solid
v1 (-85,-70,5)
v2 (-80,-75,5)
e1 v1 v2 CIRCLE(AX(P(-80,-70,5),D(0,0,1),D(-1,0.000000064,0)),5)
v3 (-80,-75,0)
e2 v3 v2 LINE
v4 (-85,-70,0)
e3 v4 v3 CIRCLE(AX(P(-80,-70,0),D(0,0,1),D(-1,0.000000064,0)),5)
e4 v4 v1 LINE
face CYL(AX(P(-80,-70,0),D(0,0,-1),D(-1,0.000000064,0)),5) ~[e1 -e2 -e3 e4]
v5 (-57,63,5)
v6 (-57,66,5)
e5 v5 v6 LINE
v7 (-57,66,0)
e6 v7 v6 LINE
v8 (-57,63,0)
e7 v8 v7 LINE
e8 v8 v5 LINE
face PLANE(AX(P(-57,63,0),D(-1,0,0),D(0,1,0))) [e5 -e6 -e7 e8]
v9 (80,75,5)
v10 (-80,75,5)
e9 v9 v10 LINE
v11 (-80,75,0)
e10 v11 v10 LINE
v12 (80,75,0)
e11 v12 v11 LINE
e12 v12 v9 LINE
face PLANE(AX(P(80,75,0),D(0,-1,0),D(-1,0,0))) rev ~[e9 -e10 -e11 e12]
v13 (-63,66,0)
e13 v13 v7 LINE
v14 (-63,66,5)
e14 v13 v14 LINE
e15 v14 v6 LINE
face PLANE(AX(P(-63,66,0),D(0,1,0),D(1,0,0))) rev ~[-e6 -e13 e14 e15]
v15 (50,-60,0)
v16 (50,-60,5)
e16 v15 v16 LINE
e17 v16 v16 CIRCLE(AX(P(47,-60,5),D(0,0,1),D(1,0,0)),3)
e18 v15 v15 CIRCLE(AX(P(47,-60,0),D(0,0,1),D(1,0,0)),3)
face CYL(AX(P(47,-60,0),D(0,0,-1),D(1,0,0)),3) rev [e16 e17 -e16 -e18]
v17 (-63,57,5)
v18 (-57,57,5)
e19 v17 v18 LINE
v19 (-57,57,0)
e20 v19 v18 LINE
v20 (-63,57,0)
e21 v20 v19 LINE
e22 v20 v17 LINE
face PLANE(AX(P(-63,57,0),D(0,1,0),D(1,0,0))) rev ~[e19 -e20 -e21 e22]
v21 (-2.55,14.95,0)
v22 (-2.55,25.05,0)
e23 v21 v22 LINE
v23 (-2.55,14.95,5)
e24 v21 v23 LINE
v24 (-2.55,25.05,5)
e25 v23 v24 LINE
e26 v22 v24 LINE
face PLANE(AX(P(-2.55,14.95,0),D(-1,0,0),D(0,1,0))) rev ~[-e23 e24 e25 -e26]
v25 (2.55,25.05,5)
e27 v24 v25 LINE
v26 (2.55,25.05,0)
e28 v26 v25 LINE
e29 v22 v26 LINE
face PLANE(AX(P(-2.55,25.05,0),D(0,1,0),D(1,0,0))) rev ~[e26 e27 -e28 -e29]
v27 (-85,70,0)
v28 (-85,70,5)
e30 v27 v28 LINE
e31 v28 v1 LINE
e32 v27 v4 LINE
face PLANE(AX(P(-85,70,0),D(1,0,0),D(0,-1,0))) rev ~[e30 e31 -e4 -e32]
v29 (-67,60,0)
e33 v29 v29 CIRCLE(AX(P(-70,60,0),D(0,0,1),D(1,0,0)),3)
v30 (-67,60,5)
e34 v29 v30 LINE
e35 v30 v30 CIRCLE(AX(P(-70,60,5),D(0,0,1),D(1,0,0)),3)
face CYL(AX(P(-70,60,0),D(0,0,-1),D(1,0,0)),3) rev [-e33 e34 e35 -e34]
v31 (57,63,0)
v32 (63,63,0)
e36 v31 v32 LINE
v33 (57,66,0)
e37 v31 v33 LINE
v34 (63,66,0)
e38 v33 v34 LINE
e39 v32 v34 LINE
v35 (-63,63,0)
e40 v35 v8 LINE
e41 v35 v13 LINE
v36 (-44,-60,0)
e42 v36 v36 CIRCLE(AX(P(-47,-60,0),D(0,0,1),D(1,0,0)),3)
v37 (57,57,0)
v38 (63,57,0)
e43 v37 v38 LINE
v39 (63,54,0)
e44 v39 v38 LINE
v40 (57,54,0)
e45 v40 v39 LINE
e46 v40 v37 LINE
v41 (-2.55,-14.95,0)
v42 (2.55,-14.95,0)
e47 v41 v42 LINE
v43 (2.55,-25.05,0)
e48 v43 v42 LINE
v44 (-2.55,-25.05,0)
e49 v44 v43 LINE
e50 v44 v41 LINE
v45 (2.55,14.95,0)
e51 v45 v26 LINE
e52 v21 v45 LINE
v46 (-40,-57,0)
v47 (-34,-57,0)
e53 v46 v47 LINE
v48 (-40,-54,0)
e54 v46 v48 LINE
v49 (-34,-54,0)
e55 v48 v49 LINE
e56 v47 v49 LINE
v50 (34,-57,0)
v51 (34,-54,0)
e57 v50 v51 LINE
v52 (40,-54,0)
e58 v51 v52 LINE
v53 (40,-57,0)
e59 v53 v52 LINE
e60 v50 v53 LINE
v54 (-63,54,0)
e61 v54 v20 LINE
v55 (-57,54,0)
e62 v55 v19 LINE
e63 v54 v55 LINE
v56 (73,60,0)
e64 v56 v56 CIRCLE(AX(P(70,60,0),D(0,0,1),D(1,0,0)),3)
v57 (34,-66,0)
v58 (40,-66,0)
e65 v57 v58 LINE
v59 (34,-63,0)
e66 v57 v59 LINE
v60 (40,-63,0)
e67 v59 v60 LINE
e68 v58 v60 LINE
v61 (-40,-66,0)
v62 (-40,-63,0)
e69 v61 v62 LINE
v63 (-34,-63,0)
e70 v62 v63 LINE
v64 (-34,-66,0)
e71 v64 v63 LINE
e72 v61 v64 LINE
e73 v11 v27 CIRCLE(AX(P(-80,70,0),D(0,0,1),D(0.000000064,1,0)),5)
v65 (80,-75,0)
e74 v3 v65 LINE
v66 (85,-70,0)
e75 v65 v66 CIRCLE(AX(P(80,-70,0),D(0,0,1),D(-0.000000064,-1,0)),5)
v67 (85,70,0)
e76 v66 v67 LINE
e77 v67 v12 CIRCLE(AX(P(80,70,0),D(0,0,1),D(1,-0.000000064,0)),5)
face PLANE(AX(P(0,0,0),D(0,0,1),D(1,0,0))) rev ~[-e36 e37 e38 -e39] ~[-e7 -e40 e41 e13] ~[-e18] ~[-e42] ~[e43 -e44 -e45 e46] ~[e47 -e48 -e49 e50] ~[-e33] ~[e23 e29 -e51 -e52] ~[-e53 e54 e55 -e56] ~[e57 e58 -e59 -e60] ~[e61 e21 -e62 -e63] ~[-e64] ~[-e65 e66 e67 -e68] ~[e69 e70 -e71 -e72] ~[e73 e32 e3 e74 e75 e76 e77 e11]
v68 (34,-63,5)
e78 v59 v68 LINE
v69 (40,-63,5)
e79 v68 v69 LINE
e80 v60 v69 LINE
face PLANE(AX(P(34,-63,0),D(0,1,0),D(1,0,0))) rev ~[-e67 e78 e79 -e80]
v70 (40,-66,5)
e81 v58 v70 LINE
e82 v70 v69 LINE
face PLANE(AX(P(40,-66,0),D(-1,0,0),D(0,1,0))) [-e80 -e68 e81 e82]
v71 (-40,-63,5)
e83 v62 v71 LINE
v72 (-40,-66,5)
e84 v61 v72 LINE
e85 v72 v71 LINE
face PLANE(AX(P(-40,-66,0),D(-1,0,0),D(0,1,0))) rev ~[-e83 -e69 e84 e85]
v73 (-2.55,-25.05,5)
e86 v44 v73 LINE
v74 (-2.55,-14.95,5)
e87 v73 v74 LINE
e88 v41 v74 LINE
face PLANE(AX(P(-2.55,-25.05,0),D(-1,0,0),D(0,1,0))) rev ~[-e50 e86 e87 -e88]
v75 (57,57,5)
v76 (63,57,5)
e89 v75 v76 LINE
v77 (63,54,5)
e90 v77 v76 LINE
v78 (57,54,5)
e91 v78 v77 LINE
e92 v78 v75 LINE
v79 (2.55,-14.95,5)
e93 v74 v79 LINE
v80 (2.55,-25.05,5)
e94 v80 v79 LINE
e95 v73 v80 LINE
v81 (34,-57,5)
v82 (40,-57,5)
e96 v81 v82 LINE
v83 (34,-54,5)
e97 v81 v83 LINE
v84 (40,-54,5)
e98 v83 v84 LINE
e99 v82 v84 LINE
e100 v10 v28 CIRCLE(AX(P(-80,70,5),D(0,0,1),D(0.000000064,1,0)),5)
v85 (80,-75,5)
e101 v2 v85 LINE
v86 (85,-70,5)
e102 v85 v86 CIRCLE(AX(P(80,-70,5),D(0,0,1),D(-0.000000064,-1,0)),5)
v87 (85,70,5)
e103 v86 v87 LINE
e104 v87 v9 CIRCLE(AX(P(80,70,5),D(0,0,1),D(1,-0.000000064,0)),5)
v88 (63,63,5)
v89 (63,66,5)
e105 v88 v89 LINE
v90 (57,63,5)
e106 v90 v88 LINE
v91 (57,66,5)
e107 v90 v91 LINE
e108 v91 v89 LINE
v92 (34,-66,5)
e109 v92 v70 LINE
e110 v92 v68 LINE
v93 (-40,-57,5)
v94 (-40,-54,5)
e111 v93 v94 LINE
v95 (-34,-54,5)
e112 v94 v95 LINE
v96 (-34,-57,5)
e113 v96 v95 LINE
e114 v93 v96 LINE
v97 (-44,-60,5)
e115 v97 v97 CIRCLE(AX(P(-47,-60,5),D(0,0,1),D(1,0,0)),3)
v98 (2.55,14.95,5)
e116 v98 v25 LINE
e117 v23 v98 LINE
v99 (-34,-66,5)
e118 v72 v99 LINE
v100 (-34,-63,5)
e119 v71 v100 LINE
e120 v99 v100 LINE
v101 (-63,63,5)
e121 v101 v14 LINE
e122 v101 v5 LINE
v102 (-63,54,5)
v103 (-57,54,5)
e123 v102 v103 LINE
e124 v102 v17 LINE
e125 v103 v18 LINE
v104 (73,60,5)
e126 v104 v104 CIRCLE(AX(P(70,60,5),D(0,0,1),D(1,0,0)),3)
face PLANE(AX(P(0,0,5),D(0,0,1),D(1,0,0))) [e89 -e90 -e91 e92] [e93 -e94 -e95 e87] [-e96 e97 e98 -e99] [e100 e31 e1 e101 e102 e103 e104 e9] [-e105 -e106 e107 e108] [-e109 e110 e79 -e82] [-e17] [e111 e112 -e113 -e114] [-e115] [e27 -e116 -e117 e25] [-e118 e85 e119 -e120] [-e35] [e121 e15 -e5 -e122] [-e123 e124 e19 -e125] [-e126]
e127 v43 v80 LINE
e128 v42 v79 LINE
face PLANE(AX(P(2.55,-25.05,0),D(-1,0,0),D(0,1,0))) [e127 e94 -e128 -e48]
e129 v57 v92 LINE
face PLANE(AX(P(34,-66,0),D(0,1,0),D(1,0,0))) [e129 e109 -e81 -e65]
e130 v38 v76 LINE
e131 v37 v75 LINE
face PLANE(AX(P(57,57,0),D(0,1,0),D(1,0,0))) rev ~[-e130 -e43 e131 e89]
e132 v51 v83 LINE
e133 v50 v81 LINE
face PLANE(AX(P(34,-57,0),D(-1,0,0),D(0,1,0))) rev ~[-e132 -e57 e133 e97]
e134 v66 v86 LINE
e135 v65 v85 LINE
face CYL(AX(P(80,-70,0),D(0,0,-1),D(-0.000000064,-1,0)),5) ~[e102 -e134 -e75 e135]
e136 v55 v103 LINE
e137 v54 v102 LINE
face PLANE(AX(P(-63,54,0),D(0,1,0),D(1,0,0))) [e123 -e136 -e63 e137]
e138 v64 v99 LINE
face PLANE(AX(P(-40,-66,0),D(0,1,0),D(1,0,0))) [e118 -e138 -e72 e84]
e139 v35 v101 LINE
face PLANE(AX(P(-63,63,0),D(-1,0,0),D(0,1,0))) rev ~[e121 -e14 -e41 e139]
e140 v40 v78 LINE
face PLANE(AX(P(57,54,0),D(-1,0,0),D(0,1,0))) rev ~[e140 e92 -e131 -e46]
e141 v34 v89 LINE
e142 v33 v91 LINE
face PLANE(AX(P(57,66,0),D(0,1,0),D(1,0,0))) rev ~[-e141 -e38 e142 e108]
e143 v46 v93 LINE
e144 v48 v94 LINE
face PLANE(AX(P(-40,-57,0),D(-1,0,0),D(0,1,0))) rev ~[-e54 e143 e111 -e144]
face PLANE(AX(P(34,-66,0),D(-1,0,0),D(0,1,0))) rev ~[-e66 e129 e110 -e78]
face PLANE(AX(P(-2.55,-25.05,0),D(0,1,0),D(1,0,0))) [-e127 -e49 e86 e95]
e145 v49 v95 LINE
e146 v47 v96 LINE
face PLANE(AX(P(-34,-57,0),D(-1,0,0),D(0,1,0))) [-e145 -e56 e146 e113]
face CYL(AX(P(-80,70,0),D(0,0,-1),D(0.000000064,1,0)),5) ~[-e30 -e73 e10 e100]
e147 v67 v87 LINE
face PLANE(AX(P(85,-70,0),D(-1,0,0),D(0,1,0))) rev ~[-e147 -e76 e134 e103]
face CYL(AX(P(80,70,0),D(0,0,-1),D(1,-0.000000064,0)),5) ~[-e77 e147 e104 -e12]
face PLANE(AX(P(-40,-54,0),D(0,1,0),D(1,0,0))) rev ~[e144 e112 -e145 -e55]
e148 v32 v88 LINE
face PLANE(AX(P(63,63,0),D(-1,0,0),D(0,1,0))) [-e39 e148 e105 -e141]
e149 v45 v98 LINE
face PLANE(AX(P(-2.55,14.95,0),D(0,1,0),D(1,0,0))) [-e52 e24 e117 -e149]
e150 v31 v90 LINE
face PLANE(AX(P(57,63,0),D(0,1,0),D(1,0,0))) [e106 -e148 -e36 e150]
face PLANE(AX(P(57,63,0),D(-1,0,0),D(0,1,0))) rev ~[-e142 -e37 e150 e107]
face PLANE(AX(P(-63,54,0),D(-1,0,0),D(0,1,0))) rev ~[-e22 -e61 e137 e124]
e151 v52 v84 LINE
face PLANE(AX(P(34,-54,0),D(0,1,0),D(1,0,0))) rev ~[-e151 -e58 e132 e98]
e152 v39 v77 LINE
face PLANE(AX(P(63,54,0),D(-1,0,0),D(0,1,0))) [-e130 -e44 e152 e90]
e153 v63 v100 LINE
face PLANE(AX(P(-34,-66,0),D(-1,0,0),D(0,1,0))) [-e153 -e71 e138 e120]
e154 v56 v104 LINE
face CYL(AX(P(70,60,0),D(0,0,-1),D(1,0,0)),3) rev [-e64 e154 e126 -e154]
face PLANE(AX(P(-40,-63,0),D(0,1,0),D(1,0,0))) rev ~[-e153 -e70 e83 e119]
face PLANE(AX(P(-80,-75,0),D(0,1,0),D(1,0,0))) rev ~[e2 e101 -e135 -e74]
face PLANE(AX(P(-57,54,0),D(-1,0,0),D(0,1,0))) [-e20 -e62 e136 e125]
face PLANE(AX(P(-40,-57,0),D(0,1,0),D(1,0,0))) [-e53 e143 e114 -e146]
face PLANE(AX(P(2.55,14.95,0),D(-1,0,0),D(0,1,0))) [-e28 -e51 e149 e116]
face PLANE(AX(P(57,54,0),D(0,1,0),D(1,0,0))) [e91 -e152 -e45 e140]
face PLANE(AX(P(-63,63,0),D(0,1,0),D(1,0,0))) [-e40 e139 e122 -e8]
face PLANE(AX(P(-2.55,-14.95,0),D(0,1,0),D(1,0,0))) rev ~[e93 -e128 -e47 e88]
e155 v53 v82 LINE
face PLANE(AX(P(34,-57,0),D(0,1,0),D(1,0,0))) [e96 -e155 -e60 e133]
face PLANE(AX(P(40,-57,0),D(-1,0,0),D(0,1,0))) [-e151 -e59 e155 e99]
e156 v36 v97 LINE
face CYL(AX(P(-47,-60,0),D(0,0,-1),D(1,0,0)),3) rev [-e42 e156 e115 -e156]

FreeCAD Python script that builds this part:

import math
import FreeCAD as App
import Part
import Sketcher

V = App.Vector


def add_polygon(sketch, points):
    """Adds a closed chain of lines whose ends are joined by coincident constraints."""
    first, n = sketch.GeometryCount, len(points)
    for a, b in zip(points, points[1:] + points[:1]):
        sketch.addGeometry(Part.LineSegment(App.Vector(*a, 0), App.Vector(*b, 0)), False)
    for i in range(n):
        sketch.addConstraint(Sketcher.Constraint("Coincident", first + i, 2, first + (i + 1) % n, 1))

doc = App.newDocument("Part")
body = doc.addObject("PartDesign::Body", "Body")

# Sketch on XY plane
sketch1 = doc.addObject("Sketcher::SketchObject", "Sketch")
body.addObject(sketch1)
sketch1.AttachmentSupport = (doc.XY_Plane, [""])
sketch1.MapMode = "FlatFace"
sketch1.addGeometry(Part.ArcOfCircle(Part.Circle(V(80, 70, 0), V(0, 0, 1), 5), math.radians(0), math.radians(90)), False)  # 0
sketch1.addGeometry(Part.LineSegment(V(80, 75, 0), V(-80, 75, 0)), False)  # 1
sketch1.addGeometry(Part.ArcOfCircle(Part.Circle(V(-80, 70, 0), V(0, 0, 1), 5), math.radians(90), math.radians(180)), False)  # 2
sketch1.addGeometry(Part.LineSegment(V(-85, 70, 0), V(-85, -70, 0)), False)  # 3
sketch1.addGeometry(Part.ArcOfCircle(Part.Circle(V(-80, -70, 0), V(0, 0, 1), 5), math.radians(180), math.radians(270)), False)  # 4
sketch1.addGeometry(Part.LineSegment(V(-80, -75, 0), V(80, -75, 0)), False)  # 5
sketch1.addGeometry(Part.ArcOfCircle(Part.Circle(V(80, -70, 0), V(0, 0, 1), 5), math.radians(-90), math.radians(0)), False)  # 6
sketch1.addGeometry(Part.LineSegment(V(85, -70, 0), V(85, 70, 0)), False)  # 7
sketch1.addGeometry(Part.Circle(V(-47, -60, 0), V(0, 0, 1), 3), False)  # 8
add_polygon(sketch1, [(-34, -66), (-40, -66), (-40, -63), (-34, -63)])  # lines 9-12
add_polygon(sketch1, [(-34, -57), (-40, -57), (-40, -54), (-34, -54)])  # lines 13-16
add_polygon(sketch1, [(40, -66), (34, -66), (34, -63), (40, -63)])  # lines 17-20
sketch1.addGeometry(Part.Circle(V(47, -60, 0), V(0, 0, 1), 3), False)  # 21
add_polygon(sketch1, [(40, -57), (34, -57), (34, -54), (40, -54)])  # lines 22-25
add_polygon(sketch1, [(2.5, -25.1), (-2.5, -25.1), (-2.5, -14.9), (2.5, -14.9)])  # lines 26-29
add_polygon(sketch1, [(-57, 54), (-63, 54), (-63, 57), (-57, 57)])  # lines 30-33
sketch1.addGeometry(Part.Circle(V(-70, 60, 0), V(0, 0, 1), 3), False)  # 34
add_polygon(sketch1, [(-57, 63), (-63, 63), (-63, 66), (-57, 66)])  # lines 35-38
add_polygon(sketch1, [(2.5, 14.9), (-2.5, 14.9), (-2.5, 25.1), (2.5, 25.1)])  # lines 39-42
add_polygon(sketch1, [(63, 54), (57, 54), (57, 57), (63, 57)])  # lines 43-46
add_polygon(sketch1, [(63, 63), (57, 63), (57, 66), (63, 66)])  # lines 47-50
sketch1.addGeometry(Part.Circle(V(70, 60, 0), V(0, 0, 1), 3), False)  # 51
sketch1.addConstraint([
    Sketcher.Constraint("Tangent", 0, 2, 1, 1),
    Sketcher.Constraint("Tangent", 1, 2, 2, 1),
    Sketcher.Constraint("Tangent", 2, 2, 3, 1),
    Sketcher.Constraint("Tangent", 3, 2, 4, 1),
    Sketcher.Constraint("Tangent", 4, 2, 5, 1),
    Sketcher.Constraint("Tangent", 5, 2, 6, 1),
    Sketcher.Constraint("Tangent", 6, 2, 7, 1),
    Sketcher.Constraint("Tangent", 7, 2, 0, 1),
    Sketcher.Constraint("Horizontal", 1),
    Sketcher.Constraint("Vertical", 3),
    Sketcher.Constraint("Horizontal", 5),
    Sketcher.Constraint("Vertical", 7),
    Sketcher.Constraint("Horizontal", 9),
    Sketcher.Constraint("Vertical", 10),
    Sketcher.Constraint("Horizontal", 11),
    Sketcher.Constraint("Vertical", 12),
    Sketcher.Constraint("Horizontal", 13),
    Sketcher.Constraint("Vertical", 14),
    Sketcher.Constraint("Horizontal", 15),
    Sketcher.Constraint("Vertical", 16),
    Sketcher.Constraint("Horizontal", 17),
    Sketcher.Constraint("Vertical", 18),
    Sketcher.Constraint("Horizontal", 19),
    Sketcher.Constraint("Vertical", 20),
    Sketcher.Constraint("Horizontal", 22),
    Sketcher.Constraint("Vertical", 23),
    Sketcher.Constraint("Horizontal", 24),
    Sketcher.Constraint("Vertical", 25),
    Sketcher.Constraint("Horizontal", 26),
    Sketcher.Constraint("Vertical", 27),
    Sketcher.Constraint("Horizontal", 28),
    Sketcher.Constraint("Vertical", 29),
    Sketcher.Constraint("Horizontal", 30),
    Sketcher.Constraint("Vertical", 31),
    Sketcher.Constraint("Horizontal", 32),
    Sketcher.Constraint("Vertical", 33),
    Sketcher.Constraint("Horizontal", 35),
    Sketcher.Constraint("Vertical", 36),
    Sketcher.Constraint("Horizontal", 37),
    Sketcher.Constraint("Vertical", 38),
    Sketcher.Constraint("Horizontal", 39),
    Sketcher.Constraint("Vertical", 40),
    Sketcher.Constraint("Horizontal", 41),
    Sketcher.Constraint("Vertical", 42),
    Sketcher.Constraint("Horizontal", 43),
    Sketcher.Constraint("Vertical", 44),
    Sketcher.Constraint("Horizontal", 45),
    Sketcher.Constraint("Vertical", 46),
    Sketcher.Constraint("Horizontal", 47),
    Sketcher.Constraint("Vertical", 48),
    Sketcher.Constraint("Horizontal", 49),
    Sketcher.Constraint("Vertical", 50),
    Sketcher.Constraint("Equal", 0, 2),
    Sketcher.Constraint("Equal", 2, 4),
    Sketcher.Constraint("Equal", 4, 6),
    Sketcher.Constraint("Equal", 8, 21),
    Sketcher.Constraint("Equal", 21, 34),
    Sketcher.Constraint("Equal", 34, 51),
    Sketcher.Constraint("Symmetric", 0, 3, 4, 3, -1, 1),
    Sketcher.Constraint("Symmetric", 28, 2, 39, 2, -1, 1),
    Sketcher.Constraint("Symmetric", 26, 2, 41, 2, -1, 1),
    Sketcher.Constraint("Symmetric", 8, 3, 21, 3, -2),
    Sketcher.Constraint("Symmetric", 34, 3, 51, 3, -2),
    Sketcher.Constraint("Symmetric", 12, 2, 17, 2, -2),
    Sketcher.Constraint("Symmetric", 10, 2, 19, 2, -2),
    Sketcher.Constraint("Symmetric", 16, 2, 22, 2, -2),
    Sketcher.Constraint("Symmetric", 14, 2, 24, 2, -2),
    Sketcher.Constraint("Symmetric", 33, 2, 43, 2, -2),
    Sketcher.Constraint("Symmetric", 31, 2, 45, 2, -2),
    Sketcher.Constraint("Symmetric", 38, 2, 47, 2, -2),
    Sketcher.Constraint("Symmetric", 36, 2, 49, 2, -2),
    Sketcher.Constraint("Vertical", 10, 2, 13, 2),
    Sketcher.Constraint("Vertical", 12, 2, 15, 2),
    Sketcher.Constraint("Vertical", 31, 2, 35, 2),
    Sketcher.Constraint("Vertical", 33, 2, 37, 2),
    Sketcher.Constraint("Vertical", 27, 2, 39, 2),
    Sketcher.Constraint("Equal", 24, 30),
    Sketcher.Constraint("Equal", 12, 14),
    Sketcher.Constraint("Equal", 25, 31),
    Sketcher.Constraint("Equal", 33, 36),
    Sketcher.Constraint("Diameter", 8, 6.0),
    Sketcher.Constraint("Radius", 0, 5.0),
    Sketcher.Constraint("DistanceX", 1, 2, 1, 1, 160.0),
    Sketcher.Constraint("DistanceX", 9, 2, 9, 1, 6.0),
    Sketcher.Constraint("DistanceY", 3, 2, 3, 1, 140.0),
    Sketcher.Constraint("DistanceY", 10, 1, 10, 2, 3.0),
    Sketcher.Constraint("DistanceX", 26, 2, 26, 1, 5.1),
    Sketcher.Constraint("DistanceY", 27, 1, 27, 2, 10.1),
    Sketcher.Constraint("DistanceX", 8, 3, -1, 1, 47.0),
    Sketcher.Constraint("DistanceY", 8, 3, -1, 1, 60.0),
    Sketcher.Constraint("DistanceX", 34, 3, -1, 1, 70.0),
    Sketcher.Constraint("DistanceY", -1, 1, 34, 3, 60.0),
    Sketcher.Constraint("DistanceX", 9, 2, -1, 1, 40.0),
    Sketcher.Constraint("DistanceY", 9, 2, -1, 1, 66.0),
    Sketcher.Constraint("DistanceY", 13, 2, -1, 1, 57.0),
    Sketcher.Constraint("DistanceX", 30, 2, -1, 1, 63.0),
    Sketcher.Constraint("DistanceY", -1, 1, 30, 2, 54.0),
    Sketcher.Constraint("DistanceY", -1, 1, 35, 2, 63.0),
    Sketcher.Constraint("DistanceY", 26, 2, 39, 2, 40.0),
])
pad1 = doc.addObject("PartDesign::Pad", "Pad")
body.addObject(pad1)
pad1.Profile = sketch1
pad1.Length = 5

doc.recompute()
